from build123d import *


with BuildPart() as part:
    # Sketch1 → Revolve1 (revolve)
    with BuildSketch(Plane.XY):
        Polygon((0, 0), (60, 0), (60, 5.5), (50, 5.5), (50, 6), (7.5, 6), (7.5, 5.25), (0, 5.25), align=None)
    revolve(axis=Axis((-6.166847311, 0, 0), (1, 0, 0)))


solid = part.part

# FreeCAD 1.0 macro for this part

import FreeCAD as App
import Part
import Sketcher


def add_polygon(sketch, points):
    """Adds a closed chain of lines whose ends are joined by coincident constraints."""
    first, n = sketch.GeometryCount, len(points)
    for a, b in zip(points, points[1:] + points[:1]):
        sketch.addGeometry(Part.LineSegment(App.Vector(*a, 0), App.Vector(*b, 0)), False)
    for i in range(n):
        sketch.addConstraint(Sketcher.Constraint("Coincident", first + i, 2, first + (i + 1) % n, 1))

doc = App.newDocument("Part")
body = doc.addObject("PartDesign::Body", "Body")

# Sketch on XY plane
sketch1 = body.newObject("Sketcher::SketchObject", "Sketch")
sketch1.AttachmentSupport = (doc.getObject("XY_Plane"), [""])
sketch1.MapMode = "FlatFace"
add_polygon(sketch1, [(0, 0), (60, 0), (60, 5.5), (50, 5.5), (50, 6), (7.5, 6), (7.5, 5.2), (0, 5.2)])  # lines 0-7
sketch1.addConstraint([
    Sketcher.Constraint("Horizontal", 0),
    Sketcher.Constraint("Vertical", 1),
    Sketcher.Constraint("Horizontal", 2),
    Sketcher.Constraint("Vertical", 3),
    Sketcher.Constraint("Horizontal", 4),
    Sketcher.Constraint("Vertical", 5),
    Sketcher.Constraint("Horizontal", 6),
    Sketcher.Constraint("Vertical", 7),
    Sketcher.Constraint("Coincident", 7, 2, -1, 1),
    Sketcher.Constraint("DistanceX", 0, 1, 0, 2, 60.0),
    Sketcher.Constraint("DistanceX", 2, 2, 2, 1, 10.0),
    Sketcher.Constraint("DistanceX", 4, 2, 4, 1, 42.5),
    Sketcher.Constraint("DistanceY", 1, 1, 1, 2, 5.5),
    Sketcher.Constraint("DistanceY", 3, 1, 3, 2, 0.5),
    Sketcher.Constraint("DistanceY", 5, 2, 5, 1, 0.75),
])
revolution = body.newObject("PartDesign::Revolution", "Revolution")
revolution.Profile = sketch1
revolution.ReferenceAxis = (sketch1, ["H_Axis"])
revolution.Angle = 360

doc.recompute()
